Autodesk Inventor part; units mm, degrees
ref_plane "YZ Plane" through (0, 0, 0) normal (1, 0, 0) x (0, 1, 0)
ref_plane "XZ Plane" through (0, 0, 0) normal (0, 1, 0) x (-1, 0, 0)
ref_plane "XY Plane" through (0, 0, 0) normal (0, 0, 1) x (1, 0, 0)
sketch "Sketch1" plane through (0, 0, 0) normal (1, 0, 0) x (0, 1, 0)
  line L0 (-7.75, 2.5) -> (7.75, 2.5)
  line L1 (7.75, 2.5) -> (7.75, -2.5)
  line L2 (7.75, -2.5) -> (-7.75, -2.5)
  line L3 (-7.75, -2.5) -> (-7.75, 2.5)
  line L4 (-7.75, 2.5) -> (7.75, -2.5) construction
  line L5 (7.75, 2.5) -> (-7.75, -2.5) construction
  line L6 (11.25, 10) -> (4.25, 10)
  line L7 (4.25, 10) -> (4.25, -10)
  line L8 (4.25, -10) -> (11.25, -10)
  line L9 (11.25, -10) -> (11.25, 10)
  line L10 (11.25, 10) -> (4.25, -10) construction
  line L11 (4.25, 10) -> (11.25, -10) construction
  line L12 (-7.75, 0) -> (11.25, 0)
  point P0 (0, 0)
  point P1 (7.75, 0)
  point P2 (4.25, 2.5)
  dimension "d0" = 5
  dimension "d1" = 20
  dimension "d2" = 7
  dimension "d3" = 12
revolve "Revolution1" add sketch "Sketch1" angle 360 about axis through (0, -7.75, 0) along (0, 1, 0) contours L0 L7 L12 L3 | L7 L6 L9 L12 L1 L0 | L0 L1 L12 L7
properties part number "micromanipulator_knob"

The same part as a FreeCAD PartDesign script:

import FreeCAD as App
import Part
import Sketcher
from FreeCAD import Vector
Q = App.Units.Quantity

doc = App.newDocument("Part")
body = doc.addObject("PartDesign::Body", "Body")

sketch1 = body.newObject("Sketcher::SketchObject", "Sketch")
sketch1.AttachmentSupport = (doc.getObject("YZ_Plane"), [""])
sketch1.MapMode = "FlatFace"
sketch1.addGeometry([
    Part.LineSegment(Vector(4.25, 2.5, 0), Vector(-7.75, 2.5, 0)),
    Part.LineSegment(Vector(-7.75, 2.5, 0), Vector(-7.75, 0, 0)),
    Part.LineSegment(Vector(-7.75, 0, 0), Vector(11.25, 0, 0)),
    Part.LineSegment(Vector(11.25, 0, 0), Vector(11.25, 10, 0)),
    Part.LineSegment(Vector(11.25, 10, 0), Vector(4.25, 10, 0)),
    Part.LineSegment(Vector(4.25, 10, 0), Vector(4.25, 2.5, 0)),
], False)
sketch1.addConstraint([
    Sketcher.Constraint("Coincident", 0, 2, 1, 1),
    Sketcher.Constraint("Coincident", 1, 2, 2, 1),
    Sketcher.Constraint("Coincident", 2, 2, 3, 1),
    Sketcher.Constraint("Coincident", 3, 2, 4, 1),
    Sketcher.Constraint("Coincident", 4, 2, 5, 1),
    Sketcher.Constraint("Coincident", 5, 2, 0, 1),
    Sketcher.Constraint("Horizontal", 0),
    Sketcher.Constraint("Vertical", 1),
    Sketcher.Constraint("Horizontal", 2),
    Sketcher.Constraint("Vertical", 3),
    Sketcher.Constraint("Horizontal", 4),
    Sketcher.Constraint("Vertical", 5),
    Sketcher.Constraint("PointOnObject", 1, 2, -1),
    Sketcher.Constraint("DistanceX", 0, 2, 0, 1, Q("12 mm")),
    Sketcher.Constraint("DistanceX", 4, 2, 4, 1, Q("7 mm")),
    Sketcher.Constraint("DistanceY", 3, 1, 3, 2, Q("10 mm")),
    Sketcher.Constraint("DistanceY", 1, 2, 1, 1, Q("2.5 mm")),
    Sketcher.Constraint("DistanceX", 0, 2, -1, 1, Q("7.75 mm")),
])
revolution = body.newObject("PartDesign::Revolution", "Revolution")
revolution.Profile = sketch1
revolution.ReferenceAxis = (sketch1, ["H_Axis"])
revolution.Angle = 360

doc.recompute()
